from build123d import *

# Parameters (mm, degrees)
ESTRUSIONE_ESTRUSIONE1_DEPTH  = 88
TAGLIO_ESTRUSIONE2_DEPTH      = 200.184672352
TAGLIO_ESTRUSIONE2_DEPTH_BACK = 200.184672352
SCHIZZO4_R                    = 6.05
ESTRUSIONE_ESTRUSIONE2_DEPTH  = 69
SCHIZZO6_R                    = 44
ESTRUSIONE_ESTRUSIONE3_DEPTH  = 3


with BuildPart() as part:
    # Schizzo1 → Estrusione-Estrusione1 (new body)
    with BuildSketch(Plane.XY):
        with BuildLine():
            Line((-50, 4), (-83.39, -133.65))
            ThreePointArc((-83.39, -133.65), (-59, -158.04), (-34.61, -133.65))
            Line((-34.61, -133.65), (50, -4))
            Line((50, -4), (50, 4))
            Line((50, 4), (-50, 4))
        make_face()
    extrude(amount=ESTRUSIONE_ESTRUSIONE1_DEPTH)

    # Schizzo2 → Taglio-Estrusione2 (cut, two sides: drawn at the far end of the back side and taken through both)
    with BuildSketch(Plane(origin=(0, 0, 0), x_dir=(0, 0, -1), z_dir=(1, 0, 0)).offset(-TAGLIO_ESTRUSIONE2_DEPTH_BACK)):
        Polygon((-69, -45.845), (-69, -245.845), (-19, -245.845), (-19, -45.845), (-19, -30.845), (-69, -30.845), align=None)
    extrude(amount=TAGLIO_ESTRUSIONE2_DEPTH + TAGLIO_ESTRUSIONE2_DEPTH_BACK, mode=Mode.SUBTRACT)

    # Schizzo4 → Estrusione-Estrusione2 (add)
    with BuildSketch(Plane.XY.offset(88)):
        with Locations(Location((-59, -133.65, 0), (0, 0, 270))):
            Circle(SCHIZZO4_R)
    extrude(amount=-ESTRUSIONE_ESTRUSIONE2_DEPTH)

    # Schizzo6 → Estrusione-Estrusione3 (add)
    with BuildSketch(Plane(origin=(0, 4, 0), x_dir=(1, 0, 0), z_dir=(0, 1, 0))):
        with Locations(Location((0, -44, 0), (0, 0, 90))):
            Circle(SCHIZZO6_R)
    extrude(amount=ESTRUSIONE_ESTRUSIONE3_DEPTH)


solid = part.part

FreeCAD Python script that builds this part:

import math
import FreeCAD as App
import Part
import Sketcher

V = App.Vector
Q = App.Units.Quantity


def add_polygon(sketch, points):
    """Adds a closed chain of lines whose ends are joined by coincident constraints."""
    first, n = sketch.GeometryCount, len(points)
    for a, b in zip(points, points[1:] + points[:1]):
        sketch.addGeometry(Part.LineSegment(App.Vector(*a, 0), App.Vector(*b, 0)), False)
    for i in range(n):
        sketch.addConstraint(Sketcher.Constraint("Coincident", first + i, 2, first + (i + 1) % n, 1))

doc = App.newDocument("Part")
body = doc.addObject("PartDesign::Body", "Body")

# Sketch on XY plane
sketch1 = body.newObject("Sketcher::SketchObject", "Sketch")
sketch1.AttachmentSupport = (doc.getObject("XY_Plane"), [""])
sketch1.MapMode = "FlatFace"
sketch1.addGeometry(Part.LineSegment(V(-50, 4, 0), V(-83, -134, 0)), False)
sketch1.addGeometry(Part.ArcOfCircle(Part.Circle(V(-59, -134, 0), V(0, 0, 1), 24), math.radians(180), math.radians(360)), False)
sketch1.addGeometry(Part.LineSegment(V(-35, -134, 0), V(50, -4, 0)), False)
sketch1.addGeometry(Part.LineSegment(V(50, -4, 0), V(50, 4, 0)), False)
sketch1.addGeometry(Part.LineSegment(V(50, 4, 0), V(-50, 4, 0)), False)
sketch1.addConstraint(Sketcher.Constraint("Coincident", 0, 2, 1, 1))
sketch1.addConstraint(Sketcher.Constraint("Coincident", 1, 2, 2, 1))
sketch1.addConstraint(Sketcher.Constraint("Coincident", 2, 2, 3, 1))
sketch1.addConstraint(Sketcher.Constraint("Coincident", 3, 2, 4, 1))
sketch1.addConstraint(Sketcher.Constraint("Coincident", 4, 2, 0, 1))
sketch1.addConstraint(Sketcher.Constraint("Vertical", 3))
sketch1.addConstraint(Sketcher.Constraint("Horizontal", 4))
sketch1.addConstraint(Sketcher.Constraint("Symmetric", 2, 2, 4, 2, -1, 1))
sketch1.addConstraint(Sketcher.Constraint("Horizontal", 1, 3, 0, 2))
sketch1.addConstraint(Sketcher.Constraint("Horizontal", 0, 2, 1, 2))
sketch1.addConstraint(Sketcher.Constraint("DistanceX", 4, 2, 4, 1, Q("100 mm")))
sketch1.addConstraint(Sketcher.Constraint("DistanceY", 3, 1, 3, 2, Q("8 mm")))
sketch1.addConstraint(Sketcher.Constraint("Radius", 1, Q("24.39 mm")))
sketch1.addConstraint(Sketcher.Constraint("DistanceX", 1, 3, -1, 1, Q("59 mm")))
sketch1.addConstraint(Sketcher.Constraint("DistanceY", 1, 3, -1, 1, Q("133.65 mm")))
pad1 = body.newObject("PartDesign::Pad", "Pad")
pad1.Profile = sketch1
pad1.Length = 88

# Sketch on YZ plane
sketch2 = body.newObject("Sketcher::SketchObject", "Sketch001")
sketch2.AttachmentSupport = (doc.getObject("YZ_Plane"), [""])
sketch2.MapMode = "FlatFace"
add_polygon(sketch2, [(-246, 69), (-246, 19), (-31, 19), (-31, 69)])  # lines 0-3
sketch2.addConstraint(Sketcher.Constraint("Vertical", 0))
sketch2.addConstraint(Sketcher.Constraint("Horizontal", 1))
sketch2.addConstraint(Sketcher.Constraint("Vertical", 2))
sketch2.addConstraint(Sketcher.Constraint("Horizontal", 3))
sketch2.addConstraint(Sketcher.Constraint("DistanceX", 1, 1, 1, 2, Q("215 mm")))
sketch2.addConstraint(Sketcher.Constraint("DistanceY", 0, 2, 0, 1, Q("50 mm")))
sketch2.addConstraint(Sketcher.Constraint("DistanceY", -1, 1, 0, 2, Q("19 mm")))
sketch2.addConstraint(Sketcher.Constraint("DistanceX", 0, 2, -1, 1, Q("245.845 mm")))
pocket1 = body.newObject("PartDesign::Pocket", "Pocket")
pocket1.Profile = sketch2
pocket1.Type = "ThroughAll"
pocket1.Midplane = True

# Sketch on XY plane
sketch3 = body.newObject("Sketcher::SketchObject", "Sketch002")
sketch3.AttachmentSupport = (doc.getObject("XY_Plane"), [""])
sketch3.MapMode = "FlatFace"
sketch3.AttachmentOffset = App.Placement(V(0, 0, 88), App.Rotation())
sketch3.addGeometry(Part.Circle(V(-59, -134, 0), V(0, 0, 1), 6), False)
sketch3.addConstraint(Sketcher.Constraint("Diameter", 0, Q("12.1 mm")))
sketch3.addConstraint(Sketcher.Constraint("DistanceX", 0, 3, -1, 1, Q("59 mm")))
sketch3.addConstraint(Sketcher.Constraint("DistanceY", 0, 3, -1, 1, Q("133.65 mm")))
pad2 = body.newObject("PartDesign::Pad", "Pad001")
pad2.Profile = sketch3
pad2.Length = 69
pad2.Reversed = True

# Sketch on XZ plane
sketch4 = body.newObject("Sketcher::SketchObject", "Sketch003")
sketch4.AttachmentSupport = (doc.getObject("XZ_Plane"), [""])
sketch4.MapMode = "FlatFace"
sketch4.AttachmentOffset = App.Placement(V(0, 0, -4), App.Rotation())
sketch4.addGeometry(Part.Circle(V(0, 44, 0), V(0, 0, 1), 44), False)
sketch4.addConstraint(Sketcher.Constraint("PointOnObject", 0, 3, -2))
sketch4.addConstraint(Sketcher.Constraint("Diameter", 0, Q("88 mm")))
sketch4.addConstraint(Sketcher.Constraint("DistanceY", -1, 1, 0, 3, Q("44 mm")))
pad3 = body.newObject("PartDesign::Pad", "Pad002")
pad3.Profile = sketch4
pad3.Length = 3
pad3.Reversed = True

doc.recompute()
